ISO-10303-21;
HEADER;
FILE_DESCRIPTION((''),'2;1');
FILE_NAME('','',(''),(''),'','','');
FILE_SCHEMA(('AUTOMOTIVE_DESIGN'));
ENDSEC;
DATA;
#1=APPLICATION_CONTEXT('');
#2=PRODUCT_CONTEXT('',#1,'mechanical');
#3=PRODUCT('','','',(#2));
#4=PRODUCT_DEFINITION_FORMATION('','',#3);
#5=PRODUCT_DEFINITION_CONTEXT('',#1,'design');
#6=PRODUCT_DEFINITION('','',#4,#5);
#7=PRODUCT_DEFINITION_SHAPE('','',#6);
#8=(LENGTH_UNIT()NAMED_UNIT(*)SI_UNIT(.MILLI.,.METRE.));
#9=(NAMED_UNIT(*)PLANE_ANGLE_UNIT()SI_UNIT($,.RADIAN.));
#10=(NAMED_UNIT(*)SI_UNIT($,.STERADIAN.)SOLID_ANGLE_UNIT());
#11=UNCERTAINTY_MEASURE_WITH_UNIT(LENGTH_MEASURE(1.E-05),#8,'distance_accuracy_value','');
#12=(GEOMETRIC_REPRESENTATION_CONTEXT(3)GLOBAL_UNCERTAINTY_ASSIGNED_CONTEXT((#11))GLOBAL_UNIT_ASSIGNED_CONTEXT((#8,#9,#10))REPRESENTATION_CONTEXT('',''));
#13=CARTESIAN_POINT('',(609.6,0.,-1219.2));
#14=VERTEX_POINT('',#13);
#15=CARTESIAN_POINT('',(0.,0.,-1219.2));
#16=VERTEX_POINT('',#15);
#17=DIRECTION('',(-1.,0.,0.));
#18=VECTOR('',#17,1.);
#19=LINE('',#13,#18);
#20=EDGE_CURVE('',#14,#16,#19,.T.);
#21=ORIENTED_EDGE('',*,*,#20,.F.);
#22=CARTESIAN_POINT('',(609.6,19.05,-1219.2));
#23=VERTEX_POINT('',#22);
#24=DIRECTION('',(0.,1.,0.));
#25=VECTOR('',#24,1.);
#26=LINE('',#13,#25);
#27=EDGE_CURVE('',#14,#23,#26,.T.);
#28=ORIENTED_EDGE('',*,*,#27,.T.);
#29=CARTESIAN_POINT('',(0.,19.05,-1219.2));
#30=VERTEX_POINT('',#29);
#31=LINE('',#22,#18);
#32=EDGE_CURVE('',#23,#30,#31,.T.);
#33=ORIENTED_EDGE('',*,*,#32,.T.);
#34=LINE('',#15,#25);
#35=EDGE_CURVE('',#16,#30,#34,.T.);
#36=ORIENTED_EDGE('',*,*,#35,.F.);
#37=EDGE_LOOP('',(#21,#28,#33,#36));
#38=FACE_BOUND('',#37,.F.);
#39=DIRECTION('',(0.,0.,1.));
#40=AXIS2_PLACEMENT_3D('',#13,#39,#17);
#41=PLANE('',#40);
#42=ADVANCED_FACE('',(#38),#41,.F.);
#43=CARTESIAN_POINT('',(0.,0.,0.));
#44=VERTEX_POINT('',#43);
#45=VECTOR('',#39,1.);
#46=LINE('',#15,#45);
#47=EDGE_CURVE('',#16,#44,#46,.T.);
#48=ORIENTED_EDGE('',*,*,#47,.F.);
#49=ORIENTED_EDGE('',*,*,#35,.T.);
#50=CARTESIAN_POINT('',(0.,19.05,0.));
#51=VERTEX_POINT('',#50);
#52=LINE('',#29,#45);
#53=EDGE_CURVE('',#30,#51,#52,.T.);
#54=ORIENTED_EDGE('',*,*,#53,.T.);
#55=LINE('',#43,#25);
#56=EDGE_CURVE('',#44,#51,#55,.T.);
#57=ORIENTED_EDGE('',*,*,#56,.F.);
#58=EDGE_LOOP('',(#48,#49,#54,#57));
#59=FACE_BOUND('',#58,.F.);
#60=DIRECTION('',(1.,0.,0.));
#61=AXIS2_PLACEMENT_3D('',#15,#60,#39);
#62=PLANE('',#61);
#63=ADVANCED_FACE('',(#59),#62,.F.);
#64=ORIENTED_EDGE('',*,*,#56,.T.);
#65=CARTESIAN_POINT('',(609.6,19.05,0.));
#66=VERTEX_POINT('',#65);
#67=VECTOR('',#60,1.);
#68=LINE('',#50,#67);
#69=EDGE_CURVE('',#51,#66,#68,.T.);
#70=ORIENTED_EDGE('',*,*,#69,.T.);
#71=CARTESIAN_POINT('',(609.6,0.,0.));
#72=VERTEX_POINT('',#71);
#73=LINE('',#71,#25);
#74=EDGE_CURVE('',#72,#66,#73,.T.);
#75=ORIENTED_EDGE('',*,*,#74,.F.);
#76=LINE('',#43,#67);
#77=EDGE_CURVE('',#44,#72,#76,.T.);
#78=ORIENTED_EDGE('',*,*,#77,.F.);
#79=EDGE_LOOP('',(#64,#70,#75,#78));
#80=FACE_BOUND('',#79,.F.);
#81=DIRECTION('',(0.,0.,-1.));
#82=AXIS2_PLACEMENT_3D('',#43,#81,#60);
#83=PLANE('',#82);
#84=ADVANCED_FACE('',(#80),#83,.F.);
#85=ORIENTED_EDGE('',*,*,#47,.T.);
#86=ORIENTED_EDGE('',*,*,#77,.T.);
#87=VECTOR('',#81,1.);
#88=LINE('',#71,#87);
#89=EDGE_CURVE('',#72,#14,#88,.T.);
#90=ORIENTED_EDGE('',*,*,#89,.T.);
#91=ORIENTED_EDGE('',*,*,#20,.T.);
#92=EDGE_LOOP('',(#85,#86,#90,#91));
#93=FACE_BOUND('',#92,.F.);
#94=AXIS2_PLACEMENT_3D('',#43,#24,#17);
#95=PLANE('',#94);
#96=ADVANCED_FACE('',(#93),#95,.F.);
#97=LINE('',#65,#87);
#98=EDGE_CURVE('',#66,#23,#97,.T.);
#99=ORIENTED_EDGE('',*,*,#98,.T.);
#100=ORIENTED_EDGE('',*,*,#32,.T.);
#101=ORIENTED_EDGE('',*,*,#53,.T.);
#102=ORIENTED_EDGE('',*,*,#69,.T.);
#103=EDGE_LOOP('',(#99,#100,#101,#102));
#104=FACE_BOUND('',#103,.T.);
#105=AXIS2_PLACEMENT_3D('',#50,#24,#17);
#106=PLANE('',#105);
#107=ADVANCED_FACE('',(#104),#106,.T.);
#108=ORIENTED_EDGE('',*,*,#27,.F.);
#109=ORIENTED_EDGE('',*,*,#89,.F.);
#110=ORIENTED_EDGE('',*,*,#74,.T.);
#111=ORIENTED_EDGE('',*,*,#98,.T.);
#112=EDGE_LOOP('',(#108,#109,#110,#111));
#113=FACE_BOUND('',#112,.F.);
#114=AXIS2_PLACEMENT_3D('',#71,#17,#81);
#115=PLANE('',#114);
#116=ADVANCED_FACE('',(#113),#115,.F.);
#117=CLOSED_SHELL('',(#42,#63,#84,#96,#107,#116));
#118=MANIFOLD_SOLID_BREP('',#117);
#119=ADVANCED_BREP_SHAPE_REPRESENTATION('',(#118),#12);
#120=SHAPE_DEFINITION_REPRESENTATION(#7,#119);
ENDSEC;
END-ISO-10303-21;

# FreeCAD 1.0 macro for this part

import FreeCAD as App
import Part
import Sketcher
from FreeCAD import Vector
Q = App.Units.Quantity


def add_polygon(sketch, points):
    """Adds a closed chain of lines whose ends are joined by coincident constraints."""
    first, n = sketch.GeometryCount, len(points)
    for a, b in zip(points, points[1:] + points[:1]):
        sketch.addGeometry(Part.LineSegment(App.Vector(*a, 0), App.Vector(*b, 0)), False)
    for i in range(n):
        sketch.addConstraint(Sketcher.Constraint("Coincident", first + i, 2, first + (i + 1) % n, 1))

doc = App.newDocument("Part")
body = doc.addObject("PartDesign::Body", "Body")

sketch1 = body.newObject("Sketcher::SketchObject", "Sketch")
sketch1.AttachmentSupport = (doc.getObject("XZ_Plane"), [""])
sketch1.MapMode = "FlatFace"
add_polygon(sketch1, [(0, -1219), (0, 0), (610, 0), (610, -1219)])
sketch1.addConstraint([
    Sketcher.Constraint("Vertical", 0),
    Sketcher.Constraint("Horizontal", 1),
    Sketcher.Constraint("Vertical", 2),
    Sketcher.Constraint("Horizontal", 3),
    Sketcher.Constraint("Coincident", 0, 2, -1, 1),
    Sketcher.Constraint("DistanceX", 1, 1, 1, 2, Q("24 in")),
    Sketcher.Constraint("DistanceY", 0, 1, 0, 2, Q("48 in")),
])
pad1 = body.newObject("PartDesign::Pad", "Pad")
pad1.Profile = sketch1
pad1.Length = Q("0.75 in")
pad1.Reversed = True

doc.recompute()
